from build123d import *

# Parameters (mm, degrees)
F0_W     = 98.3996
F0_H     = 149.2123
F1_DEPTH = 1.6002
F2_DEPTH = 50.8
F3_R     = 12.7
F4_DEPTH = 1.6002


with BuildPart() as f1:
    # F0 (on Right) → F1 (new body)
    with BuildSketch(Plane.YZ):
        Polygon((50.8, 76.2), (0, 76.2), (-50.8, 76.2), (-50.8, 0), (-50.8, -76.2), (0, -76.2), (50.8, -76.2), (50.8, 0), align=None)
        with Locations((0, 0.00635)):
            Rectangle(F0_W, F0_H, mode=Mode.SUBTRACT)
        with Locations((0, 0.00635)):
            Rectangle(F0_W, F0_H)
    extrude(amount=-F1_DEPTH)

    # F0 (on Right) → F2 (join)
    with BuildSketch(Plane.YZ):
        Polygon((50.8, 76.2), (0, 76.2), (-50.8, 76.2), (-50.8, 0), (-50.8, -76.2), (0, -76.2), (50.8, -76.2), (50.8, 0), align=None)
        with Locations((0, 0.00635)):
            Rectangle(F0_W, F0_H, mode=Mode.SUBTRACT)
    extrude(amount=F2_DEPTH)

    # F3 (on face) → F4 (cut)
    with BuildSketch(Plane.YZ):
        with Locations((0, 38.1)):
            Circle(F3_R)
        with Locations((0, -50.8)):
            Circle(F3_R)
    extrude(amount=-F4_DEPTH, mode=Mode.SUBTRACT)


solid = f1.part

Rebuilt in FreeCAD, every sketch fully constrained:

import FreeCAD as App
import Part
import Sketcher
Q = App.Units.Quantity


def add_polygon(sketch, points):
    """Adds a closed chain of lines whose ends are joined by coincident constraints."""
    first, n = sketch.GeometryCount, len(points)
    for a, b in zip(points, points[1:] + points[:1]):
        sketch.addGeometry(Part.LineSegment(App.Vector(*a, 0), App.Vector(*b, 0)), False)
    for i in range(n):
        sketch.addConstraint(Sketcher.Constraint("Coincident", first + i, 2, first + (i + 1) % n, 1))

doc = App.newDocument("Part")
body = doc.addObject("PartDesign::Body", "Body")

# Sketch on YZ plane
sketch1 = body.newObject("Sketcher::SketchObject", "Sketch")
sketch1.AttachmentSupport = (doc.getObject("YZ_Plane"), [""])
sketch1.MapMode = "FlatFace"
add_polygon(sketch1, [(51, 76), (-51, 76), (-51, -76), (51, -76)])  # lines 0-3
sketch1.addConstraint([
    Sketcher.Constraint("Horizontal", 0),
    Sketcher.Constraint("Vertical", 1),
    Sketcher.Constraint("Horizontal", 2),
    Sketcher.Constraint("Vertical", 3),
    Sketcher.Constraint("Symmetric", 0, 2, 2, 2, -1, 1),
    Sketcher.Constraint("DistanceX", 0, 2, 0, 1, Q("4 in")),
    Sketcher.Constraint("DistanceY", 1, 2, 1, 1, Q("6 in")),
])
pad1 = body.newObject("PartDesign::Pad", "Pad")
pad1.Profile = sketch1
pad1.Length = Q("0.063 in")
pad1.Reversed = True

# Sketch on YZ plane
sketch2 = body.newObject("Sketcher::SketchObject", "Sketch001")
sketch2.AttachmentSupport = (doc.getObject("YZ_Plane"), [""])
sketch2.MapMode = "FlatFace"
add_polygon(sketch2, [(51, 76), (-51, 76), (-51, -76), (51, -76)])  # lines 0-3
add_polygon(sketch2, [(49, -75), (-49, -75), (-49, 75), (49, 75)])  # lines 4-7
sketch2.addConstraint([
    Sketcher.Constraint("Horizontal", 0),
    Sketcher.Constraint("Vertical", 1),
    Sketcher.Constraint("Horizontal", 2),
    Sketcher.Constraint("Vertical", 3),
    Sketcher.Constraint("Horizontal", 4),
    Sketcher.Constraint("Vertical", 5),
    Sketcher.Constraint("Horizontal", 6),
    Sketcher.Constraint("Vertical", 7),
    Sketcher.Constraint("Symmetric", 0, 2, 2, 2, -1, 1),
    Sketcher.Constraint("DistanceX", 0, 2, 0, 1, Q("4 in")),
    Sketcher.Constraint("DistanceY", 1, 2, 1, 1, Q("6 in")),
    Sketcher.Constraint("DistanceX", 4, 2, 4, 1, Q("3.874 in")),
    Sketcher.Constraint("DistanceY", 5, 1, 5, 2, Q("5.8745 in")),
    Sketcher.Constraint("DistanceX", 4, 2, -1, 1, Q("1.937 in")),
    Sketcher.Constraint("DistanceY", 4, 2, -1, 1, Q("2.937 in")),
])
pad2 = body.newObject("PartDesign::Pad", "Pad001")
pad2.Profile = sketch2
pad2.Length = Q("2 in")

# Sketch on YZ plane
sketch3 = body.newObject("Sketcher::SketchObject", "Sketch002")
sketch3.AttachmentSupport = (doc.getObject("YZ_Plane"), [""])
sketch3.MapMode = "FlatFace"
sketch3.addGeometry([
    Part.Circle(App.Vector(0, 38, 0), App.Vector(0, 0, 1), 13),
    Part.Circle(App.Vector(0, -51, 0), App.Vector(0, 0, 1), 13),
], False)
sketch3.addConstraint([
    Sketcher.Constraint("Equal", 0, 1),
    Sketcher.Constraint("PointOnObject", 0, 3, -2),
    Sketcher.Constraint("PointOnObject", 1, 3, -2),
    Sketcher.Constraint("Diameter", 0, Q("1 in")),
    Sketcher.Constraint("DistanceY", 1, 3, -1, 1, Q("2 in")),
    Sketcher.Constraint("DistanceY", -1, 1, 0, 3, Q("1.5 in")),
])
pocket1 = body.newObject("PartDesign::Pocket", "Pocket")
pocket1.Profile = sketch3
pocket1.Length = Q("0.063 in")

doc.recompute()
